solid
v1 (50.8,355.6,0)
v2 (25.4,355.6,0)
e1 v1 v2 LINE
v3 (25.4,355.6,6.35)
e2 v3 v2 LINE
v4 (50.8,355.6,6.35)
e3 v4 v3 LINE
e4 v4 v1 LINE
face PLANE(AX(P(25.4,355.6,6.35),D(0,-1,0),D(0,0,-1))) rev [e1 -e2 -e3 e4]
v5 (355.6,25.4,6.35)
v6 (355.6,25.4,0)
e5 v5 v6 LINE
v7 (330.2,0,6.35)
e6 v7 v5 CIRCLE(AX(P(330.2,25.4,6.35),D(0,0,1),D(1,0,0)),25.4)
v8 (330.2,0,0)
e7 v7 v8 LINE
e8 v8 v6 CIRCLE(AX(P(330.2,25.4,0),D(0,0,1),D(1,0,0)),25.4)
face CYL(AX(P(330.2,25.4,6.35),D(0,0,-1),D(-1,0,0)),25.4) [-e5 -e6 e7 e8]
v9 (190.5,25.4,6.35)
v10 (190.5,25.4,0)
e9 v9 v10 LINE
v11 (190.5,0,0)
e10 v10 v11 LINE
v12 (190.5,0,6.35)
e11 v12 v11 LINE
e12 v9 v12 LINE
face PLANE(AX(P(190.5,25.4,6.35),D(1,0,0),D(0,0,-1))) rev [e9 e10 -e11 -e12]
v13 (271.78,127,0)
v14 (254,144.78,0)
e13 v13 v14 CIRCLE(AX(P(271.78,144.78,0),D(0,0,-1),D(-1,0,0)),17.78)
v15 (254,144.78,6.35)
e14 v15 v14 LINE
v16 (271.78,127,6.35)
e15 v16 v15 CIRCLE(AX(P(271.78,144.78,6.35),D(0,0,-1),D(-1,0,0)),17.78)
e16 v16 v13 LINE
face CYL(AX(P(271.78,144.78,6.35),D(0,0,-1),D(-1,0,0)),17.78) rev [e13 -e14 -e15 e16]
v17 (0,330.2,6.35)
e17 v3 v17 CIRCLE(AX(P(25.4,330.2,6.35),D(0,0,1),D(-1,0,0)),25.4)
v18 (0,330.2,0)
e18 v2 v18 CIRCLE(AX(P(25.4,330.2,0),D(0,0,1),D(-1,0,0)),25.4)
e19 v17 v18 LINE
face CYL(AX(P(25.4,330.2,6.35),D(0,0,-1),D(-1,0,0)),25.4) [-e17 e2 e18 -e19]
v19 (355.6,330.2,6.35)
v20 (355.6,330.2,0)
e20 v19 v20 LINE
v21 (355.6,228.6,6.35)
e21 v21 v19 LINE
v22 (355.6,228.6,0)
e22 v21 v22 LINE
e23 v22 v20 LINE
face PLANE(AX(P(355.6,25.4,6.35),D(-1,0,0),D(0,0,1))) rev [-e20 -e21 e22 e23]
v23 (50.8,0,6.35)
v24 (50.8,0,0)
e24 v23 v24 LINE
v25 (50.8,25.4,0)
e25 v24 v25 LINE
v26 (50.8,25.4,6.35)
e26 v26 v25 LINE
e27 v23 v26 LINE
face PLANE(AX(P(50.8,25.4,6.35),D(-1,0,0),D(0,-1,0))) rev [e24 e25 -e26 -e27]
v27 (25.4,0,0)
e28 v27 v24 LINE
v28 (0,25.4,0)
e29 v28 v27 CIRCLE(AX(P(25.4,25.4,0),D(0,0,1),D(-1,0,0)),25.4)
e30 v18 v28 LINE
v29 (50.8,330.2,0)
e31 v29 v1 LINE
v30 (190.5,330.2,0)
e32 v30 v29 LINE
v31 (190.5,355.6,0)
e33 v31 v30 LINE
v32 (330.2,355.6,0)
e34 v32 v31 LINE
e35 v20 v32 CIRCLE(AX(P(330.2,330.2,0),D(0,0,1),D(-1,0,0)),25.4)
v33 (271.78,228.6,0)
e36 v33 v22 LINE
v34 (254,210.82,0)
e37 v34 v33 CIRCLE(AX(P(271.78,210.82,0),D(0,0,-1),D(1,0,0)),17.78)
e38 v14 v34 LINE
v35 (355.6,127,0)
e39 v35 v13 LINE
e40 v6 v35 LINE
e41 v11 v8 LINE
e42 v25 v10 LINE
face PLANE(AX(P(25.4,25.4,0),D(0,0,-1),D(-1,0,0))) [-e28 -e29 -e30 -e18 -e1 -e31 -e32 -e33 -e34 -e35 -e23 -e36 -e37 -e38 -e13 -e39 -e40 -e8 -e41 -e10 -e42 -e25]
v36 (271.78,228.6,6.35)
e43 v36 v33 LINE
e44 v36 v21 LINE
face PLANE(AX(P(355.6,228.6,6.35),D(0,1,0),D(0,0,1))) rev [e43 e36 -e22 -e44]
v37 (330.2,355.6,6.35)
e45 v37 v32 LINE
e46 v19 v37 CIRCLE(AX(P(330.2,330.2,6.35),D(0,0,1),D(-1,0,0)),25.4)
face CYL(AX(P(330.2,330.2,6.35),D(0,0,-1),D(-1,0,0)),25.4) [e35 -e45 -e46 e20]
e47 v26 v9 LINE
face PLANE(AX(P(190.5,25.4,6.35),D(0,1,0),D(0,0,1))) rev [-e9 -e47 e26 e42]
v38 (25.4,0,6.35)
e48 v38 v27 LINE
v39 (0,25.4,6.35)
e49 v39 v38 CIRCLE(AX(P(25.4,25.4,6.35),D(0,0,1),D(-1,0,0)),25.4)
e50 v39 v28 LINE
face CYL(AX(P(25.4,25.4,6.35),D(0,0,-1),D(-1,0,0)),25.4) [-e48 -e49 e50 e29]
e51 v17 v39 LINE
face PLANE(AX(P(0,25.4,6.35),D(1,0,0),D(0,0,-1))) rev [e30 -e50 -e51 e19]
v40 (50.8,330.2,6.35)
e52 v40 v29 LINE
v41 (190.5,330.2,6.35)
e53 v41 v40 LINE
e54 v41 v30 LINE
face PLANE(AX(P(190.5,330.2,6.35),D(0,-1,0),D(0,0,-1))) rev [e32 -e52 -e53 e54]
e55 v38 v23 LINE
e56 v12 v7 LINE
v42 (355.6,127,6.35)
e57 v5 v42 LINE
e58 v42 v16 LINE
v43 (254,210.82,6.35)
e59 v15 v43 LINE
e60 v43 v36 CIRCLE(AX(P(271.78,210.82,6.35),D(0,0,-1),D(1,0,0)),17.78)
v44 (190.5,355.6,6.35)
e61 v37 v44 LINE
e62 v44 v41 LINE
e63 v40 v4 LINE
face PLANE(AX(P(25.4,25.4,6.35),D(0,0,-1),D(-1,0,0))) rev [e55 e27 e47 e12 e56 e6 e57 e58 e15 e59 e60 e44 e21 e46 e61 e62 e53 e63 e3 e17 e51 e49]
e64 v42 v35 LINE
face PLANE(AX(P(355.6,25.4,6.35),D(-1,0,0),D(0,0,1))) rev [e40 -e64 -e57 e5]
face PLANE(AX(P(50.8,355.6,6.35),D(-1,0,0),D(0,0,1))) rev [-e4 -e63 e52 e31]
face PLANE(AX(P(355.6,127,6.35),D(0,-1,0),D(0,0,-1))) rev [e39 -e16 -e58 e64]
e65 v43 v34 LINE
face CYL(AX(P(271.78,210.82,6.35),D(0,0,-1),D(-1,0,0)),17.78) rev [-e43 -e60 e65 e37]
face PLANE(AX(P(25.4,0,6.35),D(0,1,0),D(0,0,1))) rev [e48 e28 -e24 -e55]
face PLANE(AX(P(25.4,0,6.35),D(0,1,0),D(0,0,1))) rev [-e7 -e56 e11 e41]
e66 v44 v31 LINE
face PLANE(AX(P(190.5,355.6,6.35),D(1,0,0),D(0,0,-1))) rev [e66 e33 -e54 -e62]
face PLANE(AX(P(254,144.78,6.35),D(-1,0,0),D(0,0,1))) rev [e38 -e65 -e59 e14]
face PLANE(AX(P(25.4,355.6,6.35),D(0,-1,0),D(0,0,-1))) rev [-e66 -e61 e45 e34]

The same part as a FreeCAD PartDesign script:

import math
import FreeCAD as App
import Part
import Sketcher
Q = App.Units.Quantity


def add_polygon(sketch, points):
    """Adds a closed chain of lines whose ends are joined by coincident constraints."""
    first, n = sketch.GeometryCount, len(points)
    for a, b in zip(points, points[1:] + points[:1]):
        sketch.addGeometry(Part.LineSegment(App.Vector(*a, 0), App.Vector(*b, 0)), False)
    for i in range(n):
        sketch.addConstraint(Sketcher.Constraint("Coincident", first + i, 2, first + (i + 1) % n, 1))

doc = App.newDocument("Part")
body = doc.addObject("PartDesign::Body", "Body")

# Sketch on XY plane
sketch1 = doc.addObject("Sketcher::SketchObject", "Sketch")
body.addObject(sketch1)
sketch1.AttachmentSupport = (doc.XY_Plane, [""])
sketch1.MapMode = "FlatFace"
sketch1.addGeometry(Part.LineSegment(App.Vector(25.4, 0, 0), App.Vector(330.2, 0, 0)), False)
sketch1.addGeometry(Part.ArcOfCircle(Part.Circle(App.Vector(330.2, 25.4, 0), App.Vector(0, 0, 1), 25.4), math.radians(-90), math.radians(0)), False)
sketch1.addGeometry(Part.LineSegment(App.Vector(355.6, 25.4, 0), App.Vector(355.6, 330.2, 0)), False)
sketch1.addGeometry(Part.ArcOfCircle(Part.Circle(App.Vector(330.2, 330.2, 0), App.Vector(0, 0, 1), 25.4), math.radians(0), math.radians(90)), False)
sketch1.addGeometry(Part.LineSegment(App.Vector(330.2, 355.6, 0), App.Vector(25.4, 355.6, 0)), False)
sketch1.addGeometry(Part.ArcOfCircle(Part.Circle(App.Vector(25.4, 330.2, 0), App.Vector(0, 0, 1), 25.4), math.radians(90), math.radians(180)), False)
sketch1.addGeometry(Part.LineSegment(App.Vector(0, 330.2, 0), App.Vector(0, 25.4, 0)), False)
sketch1.addGeometry(Part.ArcOfCircle(Part.Circle(App.Vector(25.4, 25.4, 0), App.Vector(0, 0, 1), 25.4), math.radians(180), math.radians(270)), False)
sketch1.addConstraint(Sketcher.Constraint("Tangent", 0, 2, 1, 1))
sketch1.addConstraint(Sketcher.Constraint("Tangent", 1, 2, 2, 1))
sketch1.addConstraint(Sketcher.Constraint("Tangent", 2, 2, 3, 1))
sketch1.addConstraint(Sketcher.Constraint("Tangent", 3, 2, 4, 1))
sketch1.addConstraint(Sketcher.Constraint("Tangent", 4, 2, 5, 1))
sketch1.addConstraint(Sketcher.Constraint("Tangent", 5, 2, 6, 1))
sketch1.addConstraint(Sketcher.Constraint("Tangent", 6, 2, 7, 1))
sketch1.addConstraint(Sketcher.Constraint("Tangent", 7, 2, 0, 1))
sketch1.addConstraint(Sketcher.Constraint("Horizontal", 0))
sketch1.addConstraint(Sketcher.Constraint("Vertical", 2))
sketch1.addConstraint(Sketcher.Constraint("Horizontal", 4))
sketch1.addConstraint(Sketcher.Constraint("Vertical", 6))
sketch1.addConstraint(Sketcher.Constraint("Equal", 1, 3))
sketch1.addConstraint(Sketcher.Constraint("Equal", 3, 5))
sketch1.addConstraint(Sketcher.Constraint("Equal", 5, 7))
sketch1.addConstraint(Sketcher.Constraint("PointOnObject", 0, 2, -1))
sketch1.addConstraint(Sketcher.Constraint("PointOnObject", 5, 2, -2))
sketch1.addConstraint(Sketcher.Constraint("Equal", 4, 2))
sketch1.addConstraint(Sketcher.Constraint("Radius", 1, Q("1 in")))
sketch1.addConstraint(Sketcher.Constraint("DistanceX", 0, 1, 0, 2, Q("12 in")))
pad1 = doc.addObject("PartDesign::Pad", "Pad")
body.addObject(pad1)
pad1.Profile = sketch1
pad1.Length = Q("0.25 in")

# Sketch on XY plane
sketch2 = doc.addObject("Sketcher::SketchObject", "Sketch001")
body.addObject(sketch2)
sketch2.AttachmentSupport = (doc.XY_Plane, [""])
sketch2.MapMode = "FlatFace"
add_polygon(sketch2, [(190.5, 355.6), (190.5, 330.2), (50.8, 330.2), (50.8, 355.6)])  # lines 0-3
add_polygon(sketch2, [(190.5, 25.4), (190.5, 0), (50.8, 0), (50.8, 25.4)])  # lines 4-7
sketch2.addConstraint(Sketcher.Constraint("Vertical", 0))
sketch2.addConstraint(Sketcher.Constraint("Horizontal", 1))
sketch2.addConstraint(Sketcher.Constraint("Vertical", 2))
sketch2.addConstraint(Sketcher.Constraint("Horizontal", 3))
sketch2.addConstraint(Sketcher.Constraint("Vertical", 4))
sketch2.addConstraint(Sketcher.Constraint("Horizontal", 5))
sketch2.addConstraint(Sketcher.Constraint("Vertical", 6))
sketch2.addConstraint(Sketcher.Constraint("Horizontal", 7))
sketch2.addConstraint(Sketcher.Constraint("PointOnObject", 4, 2, -1))
sketch2.addConstraint(Sketcher.Constraint("Vertical", 3, 2, 4, 2))
sketch2.addConstraint(Sketcher.Constraint("Vertical", 2, 2, 5, 2))
sketch2.addConstraint(Sketcher.Constraint("Equal", 2, 4))
sketch2.addConstraint(Sketcher.Constraint("DistanceY", 0, 2, 0, 1, Q("1 in")))
sketch2.addConstraint(Sketcher.Constraint("DistanceX", 1, 2, 1, 1, Q("5.5 in")))
sketch2.addConstraint(Sketcher.Constraint("DistanceY", -1, 1, 0, 2, Q("13 in")))
sketch2.addConstraint(Sketcher.Constraint("DistanceX", -1, 1, 1, 2, Q("2 in")))
pocket1 = doc.addObject("PartDesign::Pocket", "Pocket")
body.addObject(pocket1)
pocket1.Profile = sketch2
pocket1.Type = "ThroughAll"
pocket1.Reversed = True

# Sketch on XY plane
sketch3 = doc.addObject("Sketcher::SketchObject", "Sketch002")
body.addObject(sketch3)
sketch3.AttachmentSupport = (doc.XY_Plane, [""])
sketch3.MapMode = "FlatFace"
sketch3.addGeometry(Part.LineSegment(App.Vector(355.6, 127, 0), App.Vector(271.78, 127, 0)), False)
sketch3.addGeometry(Part.ArcOfCircle(Part.Circle(App.Vector(271.78, 144.78, 0), App.Vector(0, 0, 1), 17.78), math.radians(-180), math.radians(-90)), False)
sketch3.addGeometry(Part.LineSegment(App.Vector(254, 144.78, 0), App.Vector(254, 210.82, 0)), False)
sketch3.addGeometry(Part.ArcOfCircle(Part.Circle(App.Vector(271.78, 210.82, 0), App.Vector(0, 0, 1), 17.78), math.radians(90), math.radians(180)), False)
sketch3.addGeometry(Part.LineSegment(App.Vector(271.78, 228.6, 0), App.Vector(355.6, 228.6, 0)), False)
sketch3.addGeometry(Part.LineSegment(App.Vector(355.6, 228.6, 0), App.Vector(355.6, 127, 0)), False)
sketch3.addConstraint(Sketcher.Constraint("Tangent", 0, 2, 1, 2))
sketch3.addConstraint(Sketcher.Constraint("Tangent", 1, 1, 2, 1))
sketch3.addConstraint(Sketcher.Constraint("Tangent", 2, 2, 3, 2))
sketch3.addConstraint(Sketcher.Constraint("Tangent", 3, 1, 4, 1))
sketch3.addConstraint(Sketcher.Constraint("Coincident", 4, 2, 5, 1))
sketch3.addConstraint(Sketcher.Constraint("Coincident", 5, 2, 0, 1))
sketch3.addConstraint(Sketcher.Constraint("Horizontal", 0))
sketch3.addConstraint(Sketcher.Constraint("Vertical", 2))
sketch3.addConstraint(Sketcher.Constraint("Horizontal", 4))
sketch3.addConstraint(Sketcher.Constraint("Vertical", 5))
sketch3.addConstraint(Sketcher.Constraint("Equal", 1, 3))
sketch3.addConstraint(Sketcher.Constraint("Radius", 1, Q("0.7 in")))
sketch3.addConstraint(Sketcher.Constraint("DistanceY", 5, 2, 5, 1, Q("4 in")))
sketch3.addConstraint(Sketcher.Constraint("DistanceX", 0, 2, 0, 1, Q("3.3 in")))
sketch3.addConstraint(Sketcher.Constraint("DistanceY", -1, 1, 0, 2, Q("5 in")))
sketch3.addConstraint(Sketcher.Constraint("DistanceX", -1, 1, 1, 1, Q("10 in")))
pocket2 = doc.addObject("PartDesign::Pocket", "Pocket001")
body.addObject(pocket2)
pocket2.Profile = sketch3
pocket2.Type = "ThroughAll"
pocket2.Reversed = True

doc.recompute()
